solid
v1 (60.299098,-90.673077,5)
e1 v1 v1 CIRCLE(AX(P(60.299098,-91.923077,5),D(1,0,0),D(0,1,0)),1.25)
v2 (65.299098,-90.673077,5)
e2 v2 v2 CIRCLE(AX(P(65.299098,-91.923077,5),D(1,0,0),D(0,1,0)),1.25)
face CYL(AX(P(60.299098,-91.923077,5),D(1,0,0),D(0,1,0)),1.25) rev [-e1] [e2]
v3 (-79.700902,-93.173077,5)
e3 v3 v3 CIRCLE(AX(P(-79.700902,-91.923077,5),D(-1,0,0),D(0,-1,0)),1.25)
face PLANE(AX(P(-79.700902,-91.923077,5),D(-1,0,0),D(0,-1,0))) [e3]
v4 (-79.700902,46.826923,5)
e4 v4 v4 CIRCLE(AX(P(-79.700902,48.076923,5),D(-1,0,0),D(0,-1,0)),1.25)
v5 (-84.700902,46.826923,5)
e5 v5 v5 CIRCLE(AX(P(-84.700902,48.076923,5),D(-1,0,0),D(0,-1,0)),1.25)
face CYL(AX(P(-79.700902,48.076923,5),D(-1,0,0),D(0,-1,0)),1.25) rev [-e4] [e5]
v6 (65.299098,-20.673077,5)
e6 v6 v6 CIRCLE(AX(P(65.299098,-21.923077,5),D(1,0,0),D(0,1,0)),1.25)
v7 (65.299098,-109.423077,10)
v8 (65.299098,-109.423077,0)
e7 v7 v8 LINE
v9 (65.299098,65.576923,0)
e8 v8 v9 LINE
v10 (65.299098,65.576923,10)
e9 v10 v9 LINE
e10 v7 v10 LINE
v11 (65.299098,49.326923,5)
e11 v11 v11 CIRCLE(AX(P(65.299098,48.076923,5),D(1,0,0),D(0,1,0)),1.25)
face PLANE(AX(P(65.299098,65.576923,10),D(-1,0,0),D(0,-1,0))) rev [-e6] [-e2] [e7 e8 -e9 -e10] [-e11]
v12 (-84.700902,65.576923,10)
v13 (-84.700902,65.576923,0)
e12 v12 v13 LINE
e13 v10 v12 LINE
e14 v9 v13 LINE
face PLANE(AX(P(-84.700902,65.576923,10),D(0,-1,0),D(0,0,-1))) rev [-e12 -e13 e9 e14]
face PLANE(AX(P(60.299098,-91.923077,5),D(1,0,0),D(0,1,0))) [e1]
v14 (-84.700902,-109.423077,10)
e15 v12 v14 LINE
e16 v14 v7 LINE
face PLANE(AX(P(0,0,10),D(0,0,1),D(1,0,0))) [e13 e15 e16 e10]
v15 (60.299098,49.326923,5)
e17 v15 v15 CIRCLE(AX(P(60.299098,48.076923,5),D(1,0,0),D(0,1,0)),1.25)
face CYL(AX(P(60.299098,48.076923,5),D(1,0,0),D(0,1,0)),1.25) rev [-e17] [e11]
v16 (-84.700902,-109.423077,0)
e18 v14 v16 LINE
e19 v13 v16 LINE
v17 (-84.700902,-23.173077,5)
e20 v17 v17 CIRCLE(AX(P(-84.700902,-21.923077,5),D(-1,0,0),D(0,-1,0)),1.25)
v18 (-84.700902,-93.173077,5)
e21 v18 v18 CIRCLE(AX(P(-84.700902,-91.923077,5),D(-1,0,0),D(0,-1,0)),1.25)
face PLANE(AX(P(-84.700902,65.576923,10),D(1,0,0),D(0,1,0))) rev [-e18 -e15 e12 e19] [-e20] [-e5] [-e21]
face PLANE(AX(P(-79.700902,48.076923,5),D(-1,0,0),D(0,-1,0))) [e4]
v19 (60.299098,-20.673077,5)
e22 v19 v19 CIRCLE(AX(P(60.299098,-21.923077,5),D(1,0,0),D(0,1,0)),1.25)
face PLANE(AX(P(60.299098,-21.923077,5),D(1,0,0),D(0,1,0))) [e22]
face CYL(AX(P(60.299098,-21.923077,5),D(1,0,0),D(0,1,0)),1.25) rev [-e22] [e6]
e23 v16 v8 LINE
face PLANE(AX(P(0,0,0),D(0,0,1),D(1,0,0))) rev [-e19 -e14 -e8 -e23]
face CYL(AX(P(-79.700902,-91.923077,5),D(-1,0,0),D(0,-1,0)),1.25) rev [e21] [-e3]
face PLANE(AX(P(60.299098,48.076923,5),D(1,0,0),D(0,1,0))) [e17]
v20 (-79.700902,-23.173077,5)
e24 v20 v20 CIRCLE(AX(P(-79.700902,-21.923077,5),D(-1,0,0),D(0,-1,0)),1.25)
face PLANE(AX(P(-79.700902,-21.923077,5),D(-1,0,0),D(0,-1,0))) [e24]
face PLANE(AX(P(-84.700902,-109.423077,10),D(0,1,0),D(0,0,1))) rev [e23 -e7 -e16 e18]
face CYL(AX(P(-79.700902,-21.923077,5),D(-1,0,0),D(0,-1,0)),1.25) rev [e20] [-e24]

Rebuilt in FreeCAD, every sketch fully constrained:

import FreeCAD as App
import Part
import Sketcher
from FreeCAD import Vector

doc = App.newDocument("Part")
body = doc.addObject("PartDesign::Body", "Body")

# Sketch on XY plane
sketch1 = body.newObject("Sketcher::SketchObject", "Sketch")
sketch1.AttachmentSupport = (doc.getObject("XY_Plane"), [""])
sketch1.MapMode = "FlatFace"
sketch1.addGeometry([
    Part.LineSegment(Vector(-84.700902, 65.576923, 0), Vector(-84.700902, -109.423077, 0)),
    Part.LineSegment(Vector(-84.700902, -109.423077, 0), Vector(65.299098, -109.423077, 0)),
    Part.LineSegment(Vector(65.299098, -109.423077, 0), Vector(65.299098, 65.576923, 0)),
    Part.LineSegment(Vector(65.299098, 65.576923, 0), Vector(-84.700902, 65.576923, 0)),
], False)
sketch1.addConstraint([
    Sketcher.Constraint("Coincident", 0, 2, 1, 1),
    Sketcher.Constraint("Coincident", 1, 2, 2, 1),
    Sketcher.Constraint("Coincident", 2, 2, 3, 1),
    Sketcher.Constraint("Coincident", 3, 2, 0, 1),
    Sketcher.Constraint("Vertical", 0),
    Sketcher.Constraint("Horizontal", 1),
    Sketcher.Constraint("Vertical", 2),
    Sketcher.Constraint("Horizontal", 3),
    Sketcher.Constraint("DistanceX", 1, 1, 1, 2, 150.0),
    Sketcher.Constraint("DistanceY", 0, 2, 0, 1, 175.0),
    Sketcher.Constraint("DistanceX", 0, 2, -1, 1, 84.700902),
    Sketcher.Constraint("DistanceY", 0, 2, -1, 1, 109.423077),
])
pad1 = body.newObject("PartDesign::Pad", "Pad")
pad1.Profile = sketch1
pad1.Length = 10

# Sketch on YZ plane
sketch2 = body.newObject("Sketcher::SketchObject", "Sketch001")
sketch2.AttachmentSupport = (doc.getObject("YZ_Plane"), [""])
sketch2.MapMode = "FlatFace"
sketch2.AttachmentOffset = App.Placement(Vector(0, 0, -84.700902), App.Rotation())
sketch2.addGeometry([
    Part.Circle(Vector(48.076923, 5, 0), Vector(0, 0, 1), 1.25),
    Part.Circle(Vector(-21.923077, 5, 0), Vector(0, 0, 1), 1.25),
    Part.Circle(Vector(-91.923077, 5, 0), Vector(0, 0, 1), 1.25),
], False)
sketch2.addConstraint([
    Sketcher.Constraint("Equal", 0, 1),
    Sketcher.Constraint("Equal", 1, 2),
    Sketcher.Constraint("Horizontal", 0, 3, 1, 3),
    Sketcher.Constraint("Horizontal", 1, 3, 2, 3),
    Sketcher.Constraint("Diameter", 0, 2.5),
    Sketcher.Constraint("DistanceY", -1, 1, 0, 3, 5.0),
    Sketcher.Constraint("DistanceX", 1, 3, 0, 3, 70.0),
    Sketcher.Constraint("DistanceX", 2, 3, 1, 3, 70.0),
    Sketcher.Constraint("DistanceX", -1, 1, 0, 3, 48.076923),
])
pocket1 = body.newObject("PartDesign::Pocket", "Pocket")
pocket1.Profile = sketch2
pocket1.Length = 5
pocket1.Reversed = True

# Sketch on YZ plane
sketch3 = body.newObject("Sketcher::SketchObject", "Sketch002")
sketch3.AttachmentSupport = (doc.getObject("YZ_Plane"), [""])
sketch3.MapMode = "FlatFace"
sketch3.AttachmentOffset = App.Placement(Vector(0, 0, 60.299098), App.Rotation())
sketch3.addGeometry([
    Part.Circle(Vector(48.076923, 5, 0), Vector(0, 0, 1), 1.25),
    Part.Circle(Vector(-21.923077, 5, 0), Vector(0, 0, 1), 1.25),
    Part.Circle(Vector(-91.923077, 5, 0), Vector(0, 0, 1), 1.25),
], False)
sketch3.addConstraint([
    Sketcher.Constraint("Equal", 0, 1),
    Sketcher.Constraint("Equal", 1, 2),
    Sketcher.Constraint("Horizontal", 0, 3, 1, 3),
    Sketcher.Constraint("Horizontal", 1, 3, 2, 3),
    Sketcher.Constraint("Diameter", 0, 2.5),
    Sketcher.Constraint("DistanceY", -1, 1, 0, 3, 5.0),
    Sketcher.Constraint("DistanceX", 1, 3, 0, 3, 70.0),
    Sketcher.Constraint("DistanceX", 2, 3, 1, 3, 70.0),
    Sketcher.Constraint("DistanceX", -1, 1, 0, 3, 48.076923),
])
pocket2 = body.newObject("PartDesign::Pocket", "Pocket001")
pocket2.Profile = sketch3
pocket2.Length = 5
pocket2.Reversed = True

doc.recompute()
